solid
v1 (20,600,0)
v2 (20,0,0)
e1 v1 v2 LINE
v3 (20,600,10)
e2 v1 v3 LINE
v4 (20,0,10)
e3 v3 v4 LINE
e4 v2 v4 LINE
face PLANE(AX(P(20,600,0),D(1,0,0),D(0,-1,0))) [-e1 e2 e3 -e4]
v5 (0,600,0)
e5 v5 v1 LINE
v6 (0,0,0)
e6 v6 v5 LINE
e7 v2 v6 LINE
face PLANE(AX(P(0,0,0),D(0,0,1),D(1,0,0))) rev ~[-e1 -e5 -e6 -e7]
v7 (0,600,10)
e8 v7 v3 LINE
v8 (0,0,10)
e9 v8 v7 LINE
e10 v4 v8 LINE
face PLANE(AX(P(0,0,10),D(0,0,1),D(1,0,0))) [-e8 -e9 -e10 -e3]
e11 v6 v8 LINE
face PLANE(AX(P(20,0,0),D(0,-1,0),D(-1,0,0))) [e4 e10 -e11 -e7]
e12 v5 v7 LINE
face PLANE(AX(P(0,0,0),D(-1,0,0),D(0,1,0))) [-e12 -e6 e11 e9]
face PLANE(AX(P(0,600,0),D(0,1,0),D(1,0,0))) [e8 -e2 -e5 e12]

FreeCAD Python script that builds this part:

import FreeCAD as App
import Part
import Sketcher
from FreeCAD import Vector


def add_polygon(sketch, points):
    """Adds a closed chain of lines whose ends are joined by coincident constraints."""
    first, n = sketch.GeometryCount, len(points)
    for a, b in zip(points, points[1:] + points[:1]):
        sketch.addGeometry(Part.LineSegment(App.Vector(*a, 0), App.Vector(*b, 0)), False)
    for i in range(n):
        sketch.addConstraint(Sketcher.Constraint("Coincident", first + i, 2, first + (i + 1) % n, 1))

doc = App.newDocument("Part")
body = doc.addObject("PartDesign::Body", "Body")

sketch1 = body.newObject("Sketcher::SketchObject", "Sketch")
sketch1.AttachmentSupport = (doc.getObject("XY_Plane"), [""])
sketch1.MapMode = "FlatFace"
add_polygon(sketch1, [(0, 600), (0, 0), (20, 0), (20, 600)])
sketch1.addConstraint([
    Sketcher.Constraint("Vertical", 0),
    Sketcher.Constraint("Horizontal", 1),
    Sketcher.Constraint("Vertical", 2),
    Sketcher.Constraint("Horizontal", 3),
    Sketcher.Constraint("Coincident", 0, 2, -1, 1),
    Sketcher.Constraint("DistanceX", 1, 1, 1, 2, 20.0),
    Sketcher.Constraint("DistanceY", 0, 2, 0, 1, 600.0),
])
pad1 = body.newObject("PartDesign::Pad", "Pad")
pad1.Profile = sketch1
pad1.Length = 10

doc.recompute()
